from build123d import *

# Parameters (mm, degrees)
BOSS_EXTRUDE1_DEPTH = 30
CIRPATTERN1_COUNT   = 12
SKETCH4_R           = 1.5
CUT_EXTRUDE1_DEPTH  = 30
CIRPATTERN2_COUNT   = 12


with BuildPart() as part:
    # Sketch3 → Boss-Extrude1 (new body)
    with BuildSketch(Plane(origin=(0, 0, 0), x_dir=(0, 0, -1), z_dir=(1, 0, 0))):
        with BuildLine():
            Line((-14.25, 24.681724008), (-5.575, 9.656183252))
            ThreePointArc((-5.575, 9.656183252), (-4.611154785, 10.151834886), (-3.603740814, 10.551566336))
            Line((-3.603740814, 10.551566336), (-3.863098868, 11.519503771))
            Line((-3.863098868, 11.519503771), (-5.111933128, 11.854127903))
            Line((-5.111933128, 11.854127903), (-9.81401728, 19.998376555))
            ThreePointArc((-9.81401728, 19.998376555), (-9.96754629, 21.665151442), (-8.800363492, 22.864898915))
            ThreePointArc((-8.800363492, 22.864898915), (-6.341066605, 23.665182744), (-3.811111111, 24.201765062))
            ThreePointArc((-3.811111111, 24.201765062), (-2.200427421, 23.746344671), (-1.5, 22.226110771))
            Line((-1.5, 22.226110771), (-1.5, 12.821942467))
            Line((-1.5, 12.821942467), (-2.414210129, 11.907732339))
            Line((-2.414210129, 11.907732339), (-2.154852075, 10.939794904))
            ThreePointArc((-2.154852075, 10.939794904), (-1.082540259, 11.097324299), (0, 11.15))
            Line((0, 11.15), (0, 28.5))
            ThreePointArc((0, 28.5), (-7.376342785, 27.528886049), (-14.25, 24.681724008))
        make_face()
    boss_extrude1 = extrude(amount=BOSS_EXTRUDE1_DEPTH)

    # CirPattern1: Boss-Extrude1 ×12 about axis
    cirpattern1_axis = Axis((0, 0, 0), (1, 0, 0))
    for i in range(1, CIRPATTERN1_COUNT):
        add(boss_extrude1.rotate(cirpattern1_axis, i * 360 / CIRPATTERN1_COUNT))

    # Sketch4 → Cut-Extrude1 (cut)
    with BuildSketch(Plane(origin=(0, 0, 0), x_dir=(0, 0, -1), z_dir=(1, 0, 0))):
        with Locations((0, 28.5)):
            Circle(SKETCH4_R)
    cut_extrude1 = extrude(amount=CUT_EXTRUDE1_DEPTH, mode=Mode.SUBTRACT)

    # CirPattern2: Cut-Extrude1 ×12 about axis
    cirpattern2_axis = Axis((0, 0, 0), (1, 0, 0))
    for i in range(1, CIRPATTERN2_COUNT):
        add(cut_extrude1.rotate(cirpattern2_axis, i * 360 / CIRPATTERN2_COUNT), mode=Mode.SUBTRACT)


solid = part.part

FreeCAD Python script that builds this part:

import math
import FreeCAD as App
import Part
import Sketcher
Q = App.Units.Quantity

doc = App.newDocument("Part")
body = doc.addObject("PartDesign::Body", "Body")

# Sketch on YZ plane
sketch1 = body.newObject("Sketcher::SketchObject", "Sketch")
sketch1.AttachmentSupport = (doc.getObject("YZ_Plane"), [""])
sketch1.MapMode = "FlatFace"
sketch1.addGeometry(Part.LineSegment(App.Vector(24.7, 14.2, 0), App.Vector(9.7, 5.6, 0)), False)
sketch1.addGeometry(Part.ArcOfCircle(Part.Circle(App.Vector(0, 0, 0), App.Vector(0, 0, 1), 11.1), math.radians(18.86), math.radians(30)), False)
sketch1.addGeometry(Part.LineSegment(App.Vector(10.6, 3.6, 0), App.Vector(11.5, 3.9, 0)), False)
sketch1.addGeometry(Part.LineSegment(App.Vector(11.5, 3.9, 0), App.Vector(11.9, 5.1, 0)), False)
sketch1.addGeometry(Part.LineSegment(App.Vector(11.9, 5.1, 0), App.Vector(20, 9.8, 0)), False)
sketch1.addGeometry(Part.ArcOfCircle(Part.Circle(App.Vector(21, 8.1, 0), App.Vector(0, 0, 1), 2), math.radians(21), math.radians(120)), False)
sketch1.addGeometry(Part.ArcOfCircle(Part.Circle(App.Vector(0, 0, 0), App.Vector(0, 0, 1), 24.5), math.radians(8.95), math.radians(21.05)), False)
sketch1.addGeometry(Part.ArcOfCircle(Part.Circle(App.Vector(22.2, 3.5, 0), App.Vector(0, 0, 1), 2), math.radians(-90), math.radians(9)), False)
sketch1.addGeometry(Part.LineSegment(App.Vector(22.2, 1.5, 0), App.Vector(12.8, 1.5, 0)), False)
sketch1.addGeometry(Part.LineSegment(App.Vector(12.8, 1.5, 0), App.Vector(11.9, 2.4, 0)), False)
sketch1.addGeometry(Part.LineSegment(App.Vector(11.9, 2.4, 0), App.Vector(10.9, 2.2, 0)), False)
sketch1.addGeometry(Part.ArcOfCircle(Part.Circle(App.Vector(0, 0, 0), App.Vector(0, 0, 1), 11.1), math.radians(0), math.radians(11.14)), False)
sketch1.addGeometry(Part.LineSegment(App.Vector(11.2, 0, 0), App.Vector(28.5, 0, 0)), False)
sketch1.addGeometry(Part.ArcOfCircle(Part.Circle(App.Vector(0, 0, 0), App.Vector(0, 0, 1), 28.5), math.radians(0), math.radians(30)), False)
sketch1.addConstraint(Sketcher.Constraint("Coincident", 0, 2, 1, 2))
sketch1.addConstraint(Sketcher.Constraint("Coincident", 1, 1, 2, 1))
sketch1.addConstraint(Sketcher.Constraint("Coincident", 2, 2, 3, 1))
sketch1.addConstraint(Sketcher.Constraint("Coincident", 3, 2, 4, 1))
sketch1.addConstraint(Sketcher.Constraint("Tangent", 4, 2, 5, 2))
sketch1.addConstraint(Sketcher.Constraint("Tangent", 5, 1, 6, 2))
sketch1.addConstraint(Sketcher.Constraint("Tangent", 6, 1, 7, 2))
sketch1.addConstraint(Sketcher.Constraint("Tangent", 7, 1, 8, 1))
sketch1.addConstraint(Sketcher.Constraint("Coincident", 8, 2, 9, 1))
sketch1.addConstraint(Sketcher.Constraint("Coincident", 9, 2, 10, 1))
sketch1.addConstraint(Sketcher.Constraint("Coincident", 10, 2, 11, 2))
sketch1.addConstraint(Sketcher.Constraint("Coincident", 11, 1, 12, 1))
sketch1.addConstraint(Sketcher.Constraint("Coincident", 12, 2, 13, 1))
sketch1.addConstraint(Sketcher.Constraint("Coincident", 13, 2, 0, 1))
sketch1.addConstraint(Sketcher.Constraint("Horizontal", 8))
sketch1.addConstraint(Sketcher.Constraint("Horizontal", 12))
sketch1.addConstraint(Sketcher.Constraint("Coincident", 1, 3, -1, 1))
sketch1.addConstraint(Sketcher.Constraint("Coincident", 6, 3, -1, 1))
sketch1.addConstraint(Sketcher.Constraint("Coincident", 11, 3, -1, 1))
sketch1.addConstraint(Sketcher.Constraint("Coincident", 13, 3, -1, 1))
sketch1.addConstraint(Sketcher.Constraint("Equal", 5, 7))
sketch1.addConstraint(Sketcher.Constraint("Equal", 1, 11))
sketch1.addConstraint(Sketcher.Constraint("PointOnObject", 11, 1, -1))
sketch1.addConstraint(Sketcher.Constraint("Parallel", 0, 4))
sketch1.addConstraint(Sketcher.Constraint("Parallel", 2, 10))
sketch1.addConstraint(Sketcher.Constraint("Equal", 3, 9))
sketch1.addConstraint(Sketcher.Constraint("Equal", 2, 10))
sketch1.addConstraint(Sketcher.Constraint("Radius", 5, Q("2 mm")))
sketch1.addConstraint(Sketcher.Constraint("Radius", 6, Q("24.5 mm")))
sketch1.addConstraint(Sketcher.Constraint("Radius", 13, Q("28.5 mm")))
sketch1.addConstraint(Sketcher.Constraint("Angle", 0, Q("-150 deg")))
sketch1.addConstraint(Sketcher.Constraint("Angle", 2, Q("15 deg")))
sketch1.addConstraint(Sketcher.Constraint("Angle", 3, Q("75 deg")))
sketch1.addConstraint(Sketcher.Constraint("Angle", 9, Q("135 deg")))
sketch1.addConstraint(Sketcher.Constraint("Radius", 1, Q("11.15 mm")))
sketch1.addConstraint(Sketcher.Constraint("DistanceY", -1, 1, 7, 3, Q("3.5 mm")))
sketch1.addConstraint(Sketcher.Constraint("DistanceY", -1, 1, 13, 2, Q("14.25 mm")))
sketch1.addConstraint(Sketcher.Constraint("DistanceX", 8, 2, 8, 1, Q("9.404168 mm")))
sketch1.addConstraint(Sketcher.Constraint("DistanceY", -1, 1, 2, 2, Q("3.863099 mm")))
sketch1.addConstraint(Sketcher.Constraint("DistanceX", -1, 1, 5, 1, Q("22.864899 mm")))
pad1 = body.newObject("PartDesign::Pad", "Pad")
pad1.Profile = sketch1
pad1.Length = 30
doc.recompute()

polarpattern = body.newObject("PartDesign::PolarPattern", "PolarPattern")
polarpattern.Originals = [pad1]
polarpattern.Axis = (doc.getObject("X_Axis"), [""])
polarpattern.Angle = 360
polarpattern.Occurrences = 12
body.Tip = polarpattern

# Sketch on YZ plane
sketch2 = body.newObject("Sketcher::SketchObject", "Sketch001")
sketch2.AttachmentSupport = (doc.getObject("YZ_Plane"), [""])
sketch2.MapMode = "FlatFace"
sketch2.addGeometry(Part.Circle(App.Vector(28.5, 0, 0), App.Vector(0, 0, 1), 1.5), False)
sketch2.addConstraint(Sketcher.Constraint("PointOnObject", 0, 3, -1))
sketch2.addConstraint(Sketcher.Constraint("Diameter", 0, Q("3 mm")))
sketch2.addConstraint(Sketcher.Constraint("DistanceX", -1, 1, 0, 3, Q("28.5 mm")))
pocket1 = body.newObject("PartDesign::Pocket", "Pocket")
pocket1.Profile = sketch2
pocket1.Length = 30
pocket1.Reversed = True
doc.recompute()

polarpattern2 = body.newObject("PartDesign::PolarPattern", "PolarPattern001")
polarpattern2.Originals = [pocket1]
polarpattern2.Axis = (doc.getObject("X_Axis"), [""])
polarpattern2.Angle = 360
polarpattern2.Occurrences = 12
body.Tip = polarpattern2

doc.recompute()
